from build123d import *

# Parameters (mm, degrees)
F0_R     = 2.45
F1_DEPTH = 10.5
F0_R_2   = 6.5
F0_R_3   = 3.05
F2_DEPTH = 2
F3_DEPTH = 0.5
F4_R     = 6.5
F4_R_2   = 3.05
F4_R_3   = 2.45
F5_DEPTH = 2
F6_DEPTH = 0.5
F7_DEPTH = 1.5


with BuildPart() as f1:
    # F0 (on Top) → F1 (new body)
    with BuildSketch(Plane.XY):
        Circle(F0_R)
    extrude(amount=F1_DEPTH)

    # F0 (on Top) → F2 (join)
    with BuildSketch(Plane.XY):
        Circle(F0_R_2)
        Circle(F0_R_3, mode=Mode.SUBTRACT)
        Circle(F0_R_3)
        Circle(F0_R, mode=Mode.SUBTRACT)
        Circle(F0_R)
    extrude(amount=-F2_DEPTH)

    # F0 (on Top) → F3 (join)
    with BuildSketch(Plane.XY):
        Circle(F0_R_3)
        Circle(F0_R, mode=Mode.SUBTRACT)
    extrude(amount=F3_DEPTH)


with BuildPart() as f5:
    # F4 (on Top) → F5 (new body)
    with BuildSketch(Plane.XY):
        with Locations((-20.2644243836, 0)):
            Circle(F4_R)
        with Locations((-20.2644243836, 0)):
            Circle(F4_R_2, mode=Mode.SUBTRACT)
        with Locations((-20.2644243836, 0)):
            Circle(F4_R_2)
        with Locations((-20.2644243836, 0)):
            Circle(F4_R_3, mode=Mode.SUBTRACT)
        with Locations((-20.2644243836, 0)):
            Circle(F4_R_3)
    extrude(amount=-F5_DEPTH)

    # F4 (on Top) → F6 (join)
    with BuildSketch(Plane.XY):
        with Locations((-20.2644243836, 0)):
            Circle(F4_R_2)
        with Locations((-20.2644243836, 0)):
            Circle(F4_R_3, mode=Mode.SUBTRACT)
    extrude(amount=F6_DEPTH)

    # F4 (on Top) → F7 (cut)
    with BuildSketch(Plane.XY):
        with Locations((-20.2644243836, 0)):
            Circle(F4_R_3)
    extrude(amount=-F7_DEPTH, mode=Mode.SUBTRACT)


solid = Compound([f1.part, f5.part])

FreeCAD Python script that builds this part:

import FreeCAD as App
import Part
import Sketcher

V = App.Vector
Q = App.Units.Quantity

doc = App.newDocument("Part")
body = doc.addObject("PartDesign::Body", "Body")

sketch1 = body.newObject("Sketcher::SketchObject", "Sketch")
sketch1.AttachmentSupport = (doc.getObject("XY_Plane"), [""])
sketch1.MapMode = "FlatFace"
sketch1.addGeometry(Part.Circle(V(0, 0, 0), V(0, 0, 1), 2.45), False)
sketch1.addConstraint([
    Sketcher.Constraint("Coincident", 0, 3, -1, 1),
    Sketcher.Constraint("Diameter", 0, Q("4.9 mm")),
])
pad1 = body.newObject("PartDesign::Pad", "Pad")
pad1.Profile = sketch1
pad1.Length = 10.5

sketch2 = body.newObject("Sketcher::SketchObject", "Sketch001")
sketch2.AttachmentSupport = (doc.getObject("XY_Plane"), [""])
sketch2.MapMode = "FlatFace"
sketch2.addGeometry(Part.Circle(V(0, 0, 0), V(0, 0, 1), 6.5), False)
sketch2.addConstraint([
    Sketcher.Constraint("Coincident", 0, 3, -1, 1),
    Sketcher.Constraint("Diameter", 0, Q("13 mm")),
])
pad2 = body.newObject("PartDesign::Pad", "Pad001")
pad2.Profile = sketch2
pad2.Length = 2
pad2.Reversed = True

sketch3 = body.newObject("Sketcher::SketchObject", "Sketch002")
sketch3.AttachmentSupport = (doc.getObject("XY_Plane"), [""])
sketch3.MapMode = "FlatFace"
sketch3.addGeometry([
    Part.Circle(V(0, 0, 0), V(0, 0, 1), 3.05),
    Part.Circle(V(0, 0, 0), V(0, 0, 1), 2.45),
], False)
sketch3.addConstraint([
    Sketcher.Constraint("Coincident", 0, 3, -1, 1),
    Sketcher.Constraint("Coincident", 1, 3, -1, 1),
    Sketcher.Constraint("Diameter", 0, Q("6.1 mm")),
    Sketcher.Constraint("Diameter", 1, Q("4.9 mm")),
])
pad3 = body.newObject("PartDesign::Pad", "Pad002")
pad3.Profile = sketch3
pad3.Length = 0.5
body2 = doc.addObject("PartDesign::Body", "Body001")

sketch4 = body2.newObject("Sketcher::SketchObject", "Sketch003")
sketch4.AttachmentSupport = (doc.getObject("XY_Plane001"), [""])
sketch4.MapMode = "FlatFace"
sketch4.addGeometry(Part.Circle(V(-20.264424, 0, 0), V(0, 0, 1), 6.5), False)
sketch4.addConstraint([
    Sketcher.Constraint("PointOnObject", 0, 3, -1),
    Sketcher.Constraint("Diameter", 0, Q("13 mm")),
    Sketcher.Constraint("DistanceX", 0, 3, -1, 1, Q("20.264424 mm")),
])
pad4 = body2.newObject("PartDesign::Pad", "Pad003")
pad4.Profile = sketch4
pad4.Length = 2
pad4.Reversed = True

sketch5 = body2.newObject("Sketcher::SketchObject", "Sketch004")
sketch5.AttachmentSupport = (doc.getObject("XY_Plane001"), [""])
sketch5.MapMode = "FlatFace"
sketch5.addGeometry([
    Part.Circle(V(-20.264424, 0, 0), V(0, 0, 1), 3.05),
    Part.Circle(V(-20.264424, 0, 0), V(0, 0, 1), 2.45),
], False)
sketch5.addConstraint([
    Sketcher.Constraint("Coincident", 1, 3, 0, 3),
    Sketcher.Constraint("PointOnObject", 0, 3, -1),
    Sketcher.Constraint("Diameter", 0, Q("6.1 mm")),
    Sketcher.Constraint("Diameter", 1, Q("4.9 mm")),
    Sketcher.Constraint("DistanceX", 0, 3, -1, 1, Q("20.264424 mm")),
])
pad5 = body2.newObject("PartDesign::Pad", "Pad004")
pad5.Profile = sketch5
pad5.Length = 0.5

sketch6 = body2.newObject("Sketcher::SketchObject", "Sketch005")
sketch6.AttachmentSupport = (doc.getObject("XY_Plane001"), [""])
sketch6.MapMode = "FlatFace"
sketch6.addGeometry(Part.Circle(V(-20.264424, 0, 0), V(0, 0, 1), 2.45), False)
sketch6.addConstraint([
    Sketcher.Constraint("PointOnObject", 0, 3, -1),
    Sketcher.Constraint("Diameter", 0, Q("4.9 mm")),
    Sketcher.Constraint("DistanceX", 0, 3, -1, 1, Q("20.264424 mm")),
])
pocket1 = body2.newObject("PartDesign::Pocket", "Pocket")
pocket1.Profile = sketch6
pocket1.Length = 1.5

doc.recompute()
